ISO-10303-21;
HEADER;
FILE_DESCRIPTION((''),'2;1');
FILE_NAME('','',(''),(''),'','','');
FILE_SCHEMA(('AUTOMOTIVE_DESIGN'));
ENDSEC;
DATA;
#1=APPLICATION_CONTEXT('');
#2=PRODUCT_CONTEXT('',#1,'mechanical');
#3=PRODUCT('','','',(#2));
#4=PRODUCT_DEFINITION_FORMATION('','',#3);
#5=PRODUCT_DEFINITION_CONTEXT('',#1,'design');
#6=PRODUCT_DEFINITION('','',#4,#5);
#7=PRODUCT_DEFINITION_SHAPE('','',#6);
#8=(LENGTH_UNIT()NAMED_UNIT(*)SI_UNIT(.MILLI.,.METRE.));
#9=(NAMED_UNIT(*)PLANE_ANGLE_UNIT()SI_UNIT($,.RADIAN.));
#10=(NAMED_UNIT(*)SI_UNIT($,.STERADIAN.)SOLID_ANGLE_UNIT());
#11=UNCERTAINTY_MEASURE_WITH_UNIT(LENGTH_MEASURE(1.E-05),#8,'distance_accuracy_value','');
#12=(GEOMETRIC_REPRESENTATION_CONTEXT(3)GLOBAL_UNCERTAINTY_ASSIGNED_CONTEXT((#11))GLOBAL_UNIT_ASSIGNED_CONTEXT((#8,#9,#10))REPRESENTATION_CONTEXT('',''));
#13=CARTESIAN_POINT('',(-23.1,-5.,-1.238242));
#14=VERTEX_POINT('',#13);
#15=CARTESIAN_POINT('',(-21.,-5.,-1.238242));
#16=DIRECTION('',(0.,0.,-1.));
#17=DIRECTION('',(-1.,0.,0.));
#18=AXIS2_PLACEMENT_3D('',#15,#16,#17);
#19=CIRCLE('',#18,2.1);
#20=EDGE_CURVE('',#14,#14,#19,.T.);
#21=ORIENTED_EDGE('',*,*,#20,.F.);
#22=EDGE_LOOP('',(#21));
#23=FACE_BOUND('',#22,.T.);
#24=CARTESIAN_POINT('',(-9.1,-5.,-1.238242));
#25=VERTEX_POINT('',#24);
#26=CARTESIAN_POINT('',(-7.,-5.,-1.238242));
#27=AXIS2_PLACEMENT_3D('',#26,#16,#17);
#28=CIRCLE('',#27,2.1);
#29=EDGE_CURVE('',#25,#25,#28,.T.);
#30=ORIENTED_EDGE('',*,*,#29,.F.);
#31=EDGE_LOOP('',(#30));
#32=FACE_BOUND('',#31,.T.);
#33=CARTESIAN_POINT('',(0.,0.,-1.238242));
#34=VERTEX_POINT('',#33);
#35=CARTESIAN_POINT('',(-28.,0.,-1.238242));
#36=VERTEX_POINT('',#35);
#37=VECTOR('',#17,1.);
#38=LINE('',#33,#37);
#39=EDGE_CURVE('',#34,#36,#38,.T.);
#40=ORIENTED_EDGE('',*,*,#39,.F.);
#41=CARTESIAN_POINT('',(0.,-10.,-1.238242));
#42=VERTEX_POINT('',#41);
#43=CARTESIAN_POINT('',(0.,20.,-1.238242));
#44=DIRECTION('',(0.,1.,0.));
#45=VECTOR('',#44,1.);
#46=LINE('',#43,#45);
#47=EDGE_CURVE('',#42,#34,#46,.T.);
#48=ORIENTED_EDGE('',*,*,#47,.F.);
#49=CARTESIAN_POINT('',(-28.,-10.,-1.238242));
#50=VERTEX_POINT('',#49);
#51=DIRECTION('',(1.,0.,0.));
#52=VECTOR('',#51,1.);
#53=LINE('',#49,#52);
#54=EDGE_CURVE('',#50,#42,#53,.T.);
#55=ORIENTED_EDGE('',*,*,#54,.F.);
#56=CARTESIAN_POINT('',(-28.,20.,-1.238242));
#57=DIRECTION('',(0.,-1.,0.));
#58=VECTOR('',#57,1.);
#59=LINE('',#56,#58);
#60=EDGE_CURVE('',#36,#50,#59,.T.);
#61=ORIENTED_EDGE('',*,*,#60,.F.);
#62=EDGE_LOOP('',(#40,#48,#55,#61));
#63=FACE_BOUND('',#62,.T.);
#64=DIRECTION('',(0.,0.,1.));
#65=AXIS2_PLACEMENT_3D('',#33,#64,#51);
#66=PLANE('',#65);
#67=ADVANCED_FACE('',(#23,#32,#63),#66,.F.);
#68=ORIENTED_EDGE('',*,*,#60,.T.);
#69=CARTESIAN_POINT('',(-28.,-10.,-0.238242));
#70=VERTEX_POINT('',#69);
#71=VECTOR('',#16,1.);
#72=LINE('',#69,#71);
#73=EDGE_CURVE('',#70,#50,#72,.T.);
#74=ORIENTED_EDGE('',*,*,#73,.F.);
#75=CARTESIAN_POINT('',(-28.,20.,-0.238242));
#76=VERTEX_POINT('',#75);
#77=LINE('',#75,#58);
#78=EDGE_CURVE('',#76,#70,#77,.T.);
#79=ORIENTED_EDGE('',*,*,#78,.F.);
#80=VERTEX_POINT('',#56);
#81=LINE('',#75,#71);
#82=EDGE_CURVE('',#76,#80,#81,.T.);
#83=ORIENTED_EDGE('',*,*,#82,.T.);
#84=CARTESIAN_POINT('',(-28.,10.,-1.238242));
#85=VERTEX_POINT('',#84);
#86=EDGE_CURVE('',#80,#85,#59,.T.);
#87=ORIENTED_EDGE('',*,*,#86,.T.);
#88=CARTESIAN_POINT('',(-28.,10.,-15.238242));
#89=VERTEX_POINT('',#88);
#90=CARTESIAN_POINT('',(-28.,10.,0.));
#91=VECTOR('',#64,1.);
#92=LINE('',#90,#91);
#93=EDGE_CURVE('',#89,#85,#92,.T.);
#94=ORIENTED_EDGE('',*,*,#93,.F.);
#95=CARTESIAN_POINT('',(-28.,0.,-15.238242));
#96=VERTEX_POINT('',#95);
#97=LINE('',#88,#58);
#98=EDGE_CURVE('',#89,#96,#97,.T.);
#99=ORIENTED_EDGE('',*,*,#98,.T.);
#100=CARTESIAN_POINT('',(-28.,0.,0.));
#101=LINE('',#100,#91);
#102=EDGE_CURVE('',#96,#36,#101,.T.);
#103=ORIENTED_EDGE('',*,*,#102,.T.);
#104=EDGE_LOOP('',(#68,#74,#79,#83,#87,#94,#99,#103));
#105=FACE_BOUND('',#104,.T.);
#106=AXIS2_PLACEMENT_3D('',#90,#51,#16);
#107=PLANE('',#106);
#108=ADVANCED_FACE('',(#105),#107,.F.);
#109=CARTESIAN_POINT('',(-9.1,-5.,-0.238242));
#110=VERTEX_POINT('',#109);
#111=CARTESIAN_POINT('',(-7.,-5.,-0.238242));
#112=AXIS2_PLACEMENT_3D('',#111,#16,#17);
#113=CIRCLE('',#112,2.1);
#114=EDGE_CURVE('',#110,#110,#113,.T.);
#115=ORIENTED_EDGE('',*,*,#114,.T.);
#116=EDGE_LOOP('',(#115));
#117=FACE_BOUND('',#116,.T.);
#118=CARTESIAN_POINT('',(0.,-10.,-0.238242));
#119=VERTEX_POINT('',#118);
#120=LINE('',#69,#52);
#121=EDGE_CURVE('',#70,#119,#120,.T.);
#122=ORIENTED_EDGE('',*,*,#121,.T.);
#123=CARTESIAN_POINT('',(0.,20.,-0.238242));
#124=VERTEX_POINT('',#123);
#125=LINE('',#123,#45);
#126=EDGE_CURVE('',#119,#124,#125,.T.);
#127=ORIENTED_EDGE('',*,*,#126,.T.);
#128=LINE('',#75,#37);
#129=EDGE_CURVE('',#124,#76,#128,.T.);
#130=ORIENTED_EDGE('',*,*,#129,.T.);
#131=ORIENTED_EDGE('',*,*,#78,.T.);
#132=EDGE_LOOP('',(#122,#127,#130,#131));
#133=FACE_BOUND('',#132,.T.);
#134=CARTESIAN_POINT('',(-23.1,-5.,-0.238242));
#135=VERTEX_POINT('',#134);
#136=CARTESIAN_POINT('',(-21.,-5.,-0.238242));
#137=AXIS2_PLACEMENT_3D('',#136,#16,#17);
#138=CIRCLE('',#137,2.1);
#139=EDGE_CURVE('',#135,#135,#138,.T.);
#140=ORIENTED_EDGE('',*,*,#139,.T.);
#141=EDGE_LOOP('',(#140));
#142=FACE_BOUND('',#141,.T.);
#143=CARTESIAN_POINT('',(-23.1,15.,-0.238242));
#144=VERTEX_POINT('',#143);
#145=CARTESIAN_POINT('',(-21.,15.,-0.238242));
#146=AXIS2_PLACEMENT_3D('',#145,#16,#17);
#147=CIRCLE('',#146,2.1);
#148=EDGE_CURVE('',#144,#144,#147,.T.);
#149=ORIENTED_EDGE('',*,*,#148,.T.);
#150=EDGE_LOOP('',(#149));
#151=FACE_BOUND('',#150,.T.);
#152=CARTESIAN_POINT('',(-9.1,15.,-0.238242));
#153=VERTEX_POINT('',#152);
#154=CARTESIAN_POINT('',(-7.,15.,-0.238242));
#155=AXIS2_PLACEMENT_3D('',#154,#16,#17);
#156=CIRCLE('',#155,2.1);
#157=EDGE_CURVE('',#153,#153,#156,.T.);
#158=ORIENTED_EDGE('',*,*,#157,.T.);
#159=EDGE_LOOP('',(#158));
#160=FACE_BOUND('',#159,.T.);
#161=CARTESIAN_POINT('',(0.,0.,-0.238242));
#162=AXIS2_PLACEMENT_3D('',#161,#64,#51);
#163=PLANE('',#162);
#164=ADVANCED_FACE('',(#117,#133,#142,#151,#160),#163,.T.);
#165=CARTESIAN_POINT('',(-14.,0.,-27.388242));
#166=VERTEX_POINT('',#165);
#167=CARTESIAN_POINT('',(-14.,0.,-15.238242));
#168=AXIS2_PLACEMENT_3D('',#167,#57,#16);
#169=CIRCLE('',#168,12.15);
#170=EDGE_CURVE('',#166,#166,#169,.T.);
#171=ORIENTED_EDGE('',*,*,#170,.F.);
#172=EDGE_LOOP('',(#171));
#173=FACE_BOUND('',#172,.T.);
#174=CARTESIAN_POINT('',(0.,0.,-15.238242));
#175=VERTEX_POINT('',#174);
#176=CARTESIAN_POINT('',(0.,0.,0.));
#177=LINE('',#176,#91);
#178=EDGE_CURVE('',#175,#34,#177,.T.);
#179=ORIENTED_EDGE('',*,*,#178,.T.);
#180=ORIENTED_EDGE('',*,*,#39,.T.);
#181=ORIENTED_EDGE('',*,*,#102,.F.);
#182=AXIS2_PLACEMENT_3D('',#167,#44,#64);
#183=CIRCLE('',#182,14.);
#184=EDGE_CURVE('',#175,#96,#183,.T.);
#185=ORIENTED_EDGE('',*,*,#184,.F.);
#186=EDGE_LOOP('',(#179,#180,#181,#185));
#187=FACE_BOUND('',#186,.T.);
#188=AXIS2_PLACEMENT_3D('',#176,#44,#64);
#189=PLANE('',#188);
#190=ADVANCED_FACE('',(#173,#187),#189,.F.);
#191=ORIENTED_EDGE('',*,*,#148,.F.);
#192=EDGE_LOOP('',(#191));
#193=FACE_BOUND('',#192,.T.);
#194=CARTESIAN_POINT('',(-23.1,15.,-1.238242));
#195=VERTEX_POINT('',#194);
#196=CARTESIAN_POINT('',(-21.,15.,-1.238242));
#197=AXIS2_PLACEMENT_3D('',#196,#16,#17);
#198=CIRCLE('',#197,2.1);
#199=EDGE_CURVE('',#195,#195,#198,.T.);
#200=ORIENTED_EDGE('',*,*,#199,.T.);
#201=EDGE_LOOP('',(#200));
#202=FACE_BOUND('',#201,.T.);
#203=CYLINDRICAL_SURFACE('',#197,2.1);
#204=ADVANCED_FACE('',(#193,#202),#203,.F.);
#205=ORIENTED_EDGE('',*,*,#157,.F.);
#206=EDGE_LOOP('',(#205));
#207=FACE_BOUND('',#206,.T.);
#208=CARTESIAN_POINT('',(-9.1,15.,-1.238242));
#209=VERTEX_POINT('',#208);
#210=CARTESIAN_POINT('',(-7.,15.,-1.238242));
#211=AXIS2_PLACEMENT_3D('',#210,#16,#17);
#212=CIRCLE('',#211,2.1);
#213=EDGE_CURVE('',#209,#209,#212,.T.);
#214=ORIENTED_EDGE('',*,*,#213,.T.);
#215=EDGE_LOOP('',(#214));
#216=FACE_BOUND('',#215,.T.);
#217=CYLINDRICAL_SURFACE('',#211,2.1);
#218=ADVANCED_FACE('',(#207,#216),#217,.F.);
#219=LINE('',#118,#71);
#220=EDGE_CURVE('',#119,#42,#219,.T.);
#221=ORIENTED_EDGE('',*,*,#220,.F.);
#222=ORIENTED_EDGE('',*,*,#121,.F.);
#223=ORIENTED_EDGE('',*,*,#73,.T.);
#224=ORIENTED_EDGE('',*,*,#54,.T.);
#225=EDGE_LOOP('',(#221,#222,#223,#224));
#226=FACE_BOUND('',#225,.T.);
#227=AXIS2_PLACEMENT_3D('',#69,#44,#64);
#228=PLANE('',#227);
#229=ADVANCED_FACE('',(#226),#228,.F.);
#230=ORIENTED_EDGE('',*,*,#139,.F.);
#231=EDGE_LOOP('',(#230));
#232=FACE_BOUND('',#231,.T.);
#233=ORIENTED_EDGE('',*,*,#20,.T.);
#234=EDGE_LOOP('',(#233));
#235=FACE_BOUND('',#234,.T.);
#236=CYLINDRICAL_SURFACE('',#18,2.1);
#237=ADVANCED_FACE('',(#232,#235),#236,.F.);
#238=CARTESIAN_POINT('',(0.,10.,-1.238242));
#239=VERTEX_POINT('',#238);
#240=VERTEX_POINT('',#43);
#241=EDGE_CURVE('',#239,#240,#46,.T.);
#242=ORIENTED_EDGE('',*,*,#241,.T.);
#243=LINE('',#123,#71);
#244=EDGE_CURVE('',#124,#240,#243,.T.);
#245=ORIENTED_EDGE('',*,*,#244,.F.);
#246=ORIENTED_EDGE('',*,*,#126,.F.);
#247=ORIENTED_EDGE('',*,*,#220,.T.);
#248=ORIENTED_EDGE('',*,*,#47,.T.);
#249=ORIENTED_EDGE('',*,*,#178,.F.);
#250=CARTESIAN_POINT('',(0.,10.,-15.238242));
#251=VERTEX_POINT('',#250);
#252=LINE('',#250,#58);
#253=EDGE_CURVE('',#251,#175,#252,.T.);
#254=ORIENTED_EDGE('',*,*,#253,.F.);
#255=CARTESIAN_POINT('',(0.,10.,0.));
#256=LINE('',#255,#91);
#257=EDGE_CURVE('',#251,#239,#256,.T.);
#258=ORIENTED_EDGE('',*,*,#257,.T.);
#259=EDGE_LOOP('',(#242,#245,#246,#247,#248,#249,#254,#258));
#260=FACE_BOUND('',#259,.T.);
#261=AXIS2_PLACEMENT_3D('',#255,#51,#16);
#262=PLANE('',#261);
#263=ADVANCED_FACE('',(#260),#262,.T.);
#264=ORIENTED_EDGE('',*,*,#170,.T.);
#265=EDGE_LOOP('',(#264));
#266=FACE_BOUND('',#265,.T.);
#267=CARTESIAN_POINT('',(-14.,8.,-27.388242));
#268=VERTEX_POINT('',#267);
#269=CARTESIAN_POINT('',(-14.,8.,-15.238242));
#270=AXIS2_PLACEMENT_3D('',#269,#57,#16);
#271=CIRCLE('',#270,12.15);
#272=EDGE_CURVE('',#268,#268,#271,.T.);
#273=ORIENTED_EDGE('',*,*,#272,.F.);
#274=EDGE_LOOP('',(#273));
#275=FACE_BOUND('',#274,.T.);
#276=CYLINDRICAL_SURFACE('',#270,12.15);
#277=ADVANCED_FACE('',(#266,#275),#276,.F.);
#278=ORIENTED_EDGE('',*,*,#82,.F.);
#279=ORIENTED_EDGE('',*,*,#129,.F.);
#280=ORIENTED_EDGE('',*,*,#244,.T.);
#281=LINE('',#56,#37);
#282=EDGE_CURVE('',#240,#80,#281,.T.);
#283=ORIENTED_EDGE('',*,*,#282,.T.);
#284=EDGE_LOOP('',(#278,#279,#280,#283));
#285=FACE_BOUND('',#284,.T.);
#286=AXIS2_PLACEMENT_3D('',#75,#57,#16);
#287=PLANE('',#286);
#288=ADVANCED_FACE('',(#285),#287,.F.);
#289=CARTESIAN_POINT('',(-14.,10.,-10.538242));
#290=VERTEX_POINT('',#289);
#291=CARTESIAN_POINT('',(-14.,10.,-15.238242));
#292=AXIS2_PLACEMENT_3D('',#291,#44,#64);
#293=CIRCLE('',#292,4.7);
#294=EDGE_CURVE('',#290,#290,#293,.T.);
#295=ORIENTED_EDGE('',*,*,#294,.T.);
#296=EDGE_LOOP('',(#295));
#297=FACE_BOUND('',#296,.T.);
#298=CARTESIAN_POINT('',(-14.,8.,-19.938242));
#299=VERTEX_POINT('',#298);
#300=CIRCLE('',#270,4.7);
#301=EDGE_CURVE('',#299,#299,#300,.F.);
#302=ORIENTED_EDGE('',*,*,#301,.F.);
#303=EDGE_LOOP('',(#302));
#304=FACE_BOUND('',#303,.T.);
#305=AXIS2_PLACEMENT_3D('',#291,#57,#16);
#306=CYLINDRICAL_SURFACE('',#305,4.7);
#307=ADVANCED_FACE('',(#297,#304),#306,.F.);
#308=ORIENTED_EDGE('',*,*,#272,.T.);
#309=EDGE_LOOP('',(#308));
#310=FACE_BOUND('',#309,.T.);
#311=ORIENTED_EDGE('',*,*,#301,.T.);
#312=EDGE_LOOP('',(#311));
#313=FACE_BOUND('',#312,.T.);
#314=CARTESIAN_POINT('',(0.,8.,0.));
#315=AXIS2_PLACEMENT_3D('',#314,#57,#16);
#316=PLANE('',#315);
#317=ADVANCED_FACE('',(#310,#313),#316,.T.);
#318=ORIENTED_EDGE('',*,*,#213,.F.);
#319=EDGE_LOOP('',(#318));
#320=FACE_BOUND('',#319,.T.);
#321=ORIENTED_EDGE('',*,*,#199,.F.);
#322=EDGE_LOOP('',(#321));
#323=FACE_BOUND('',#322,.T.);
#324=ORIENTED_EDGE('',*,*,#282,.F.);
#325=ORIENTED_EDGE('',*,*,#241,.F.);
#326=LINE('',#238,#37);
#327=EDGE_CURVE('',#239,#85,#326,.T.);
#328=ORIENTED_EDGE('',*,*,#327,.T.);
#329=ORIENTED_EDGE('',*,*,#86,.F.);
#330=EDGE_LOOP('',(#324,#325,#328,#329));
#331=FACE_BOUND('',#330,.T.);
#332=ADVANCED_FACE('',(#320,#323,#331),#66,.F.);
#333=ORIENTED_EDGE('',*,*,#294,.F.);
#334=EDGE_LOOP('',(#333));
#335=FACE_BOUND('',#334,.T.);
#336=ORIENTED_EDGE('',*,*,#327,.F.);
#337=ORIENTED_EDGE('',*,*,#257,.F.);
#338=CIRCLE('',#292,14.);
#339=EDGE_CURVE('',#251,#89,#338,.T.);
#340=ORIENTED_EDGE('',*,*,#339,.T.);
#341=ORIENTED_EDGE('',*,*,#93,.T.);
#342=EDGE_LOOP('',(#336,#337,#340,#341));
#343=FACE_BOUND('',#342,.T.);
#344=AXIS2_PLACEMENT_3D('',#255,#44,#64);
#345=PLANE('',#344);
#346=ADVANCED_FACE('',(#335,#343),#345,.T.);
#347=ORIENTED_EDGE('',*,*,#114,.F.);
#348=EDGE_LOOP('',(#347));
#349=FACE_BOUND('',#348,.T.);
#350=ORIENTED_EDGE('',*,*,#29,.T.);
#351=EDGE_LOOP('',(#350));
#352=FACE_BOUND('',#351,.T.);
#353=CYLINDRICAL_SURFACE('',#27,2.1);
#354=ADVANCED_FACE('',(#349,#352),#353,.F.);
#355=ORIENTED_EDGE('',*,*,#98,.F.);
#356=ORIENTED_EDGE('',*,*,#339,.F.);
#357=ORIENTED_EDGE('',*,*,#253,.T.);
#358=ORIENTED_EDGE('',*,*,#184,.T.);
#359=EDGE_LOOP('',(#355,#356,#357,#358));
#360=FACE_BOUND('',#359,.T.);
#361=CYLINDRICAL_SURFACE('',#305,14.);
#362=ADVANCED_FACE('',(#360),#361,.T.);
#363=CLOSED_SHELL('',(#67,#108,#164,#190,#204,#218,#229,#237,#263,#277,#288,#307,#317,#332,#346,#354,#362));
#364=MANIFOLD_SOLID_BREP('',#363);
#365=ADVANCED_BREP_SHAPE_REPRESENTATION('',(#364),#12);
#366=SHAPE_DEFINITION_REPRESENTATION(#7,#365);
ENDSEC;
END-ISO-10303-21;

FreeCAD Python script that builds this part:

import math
import FreeCAD as App
import Part
import Sketcher


def add_polygon(sketch, points):
    """Adds a closed chain of lines whose ends are joined by coincident constraints."""
    first, n = sketch.GeometryCount, len(points)
    for a, b in zip(points, points[1:] + points[:1]):
        sketch.addGeometry(Part.LineSegment(App.Vector(*a, 0), App.Vector(*b, 0)), False)
    for i in range(n):
        sketch.addConstraint(Sketcher.Constraint("Coincident", first + i, 2, first + (i + 1) % n, 1))

doc = App.newDocument("Part")
body = doc.addObject("PartDesign::Body", "Body")

sketch1 = body.newObject("Sketcher::SketchObject", "Sketch")
sketch1.AttachmentSupport = (doc.getObject("XZ_Plane"), [""])
sketch1.MapMode = "FlatFace"
sketch1.addGeometry([
    Part.LineSegment(App.Vector(0, -1.2, 0), App.Vector(0, -15.2, 0)),
    Part.ArcOfCircle(Part.Circle(App.Vector(-14, -15.2, 0), App.Vector(0, 0, 1), 14), math.radians(180), math.radians(360)),
    Part.LineSegment(App.Vector(-28, -15.2, 0), App.Vector(-28, -1.2, 0)),
    Part.LineSegment(App.Vector(-28, -1.2, 0), App.Vector(0, -1.2, 0)),
    Part.Circle(App.Vector(-14, -15.2, 0), App.Vector(0, 0, 1), 4.7),
], False)
sketch1.addConstraint([
    Sketcher.Constraint("Tangent", 0, 2, 1, 2),
    Sketcher.Constraint("Tangent", 1, 1, 2, 1),
    Sketcher.Constraint("Coincident", 2, 2, 3, 1),
    Sketcher.Constraint("Coincident", 3, 2, 0, 1),
    Sketcher.Constraint("Vertical", 0),
    Sketcher.Constraint("Vertical", 2),
    Sketcher.Constraint("Horizontal", 3),
    Sketcher.Constraint("Coincident", 4, 3, 1, 3),
    Sketcher.Constraint("PointOnObject", 0, 2, -2),
    Sketcher.Constraint("Radius", 1, 14.0),
    Sketcher.Constraint("Diameter", 4, 9.4),
    Sketcher.Constraint("DistanceY", 0, 2, 0, 1, 14.0),
    Sketcher.Constraint("DistanceY", 1, 3, -1, 1, 15.238242),
])
pad1 = body.newObject("PartDesign::Pad", "Pad")
pad1.Profile = sketch1
pad1.Length = 10
pad1.Reversed = True

sketch2 = body.newObject("Sketcher::SketchObject", "Sketch001")
sketch2.AttachmentSupport = (doc.getObject("XY_Plane"), [""])
sketch2.MapMode = "FlatFace"
sketch2.AttachmentOffset = App.Placement(App.Vector(0, 0, -1.238242), App.Rotation())
add_polygon(sketch2, [(-28, 20), (-28, -10), (0, -10), (0, 20)])
sketch2.addConstraint([
    Sketcher.Constraint("Vertical", 0),
    Sketcher.Constraint("Horizontal", 1),
    Sketcher.Constraint("Vertical", 2),
    Sketcher.Constraint("Horizontal", 3),
    Sketcher.Constraint("PointOnObject", 1, 2, -2),
    Sketcher.Constraint("DistanceX", 1, 1, 1, 2, 28.0),
    Sketcher.Constraint("DistanceY", 0, 2, 0, 1, 30.0),
    Sketcher.Constraint("DistanceY", 0, 2, -1, 1, 10.0),
])
pad2 = body.newObject("PartDesign::Pad", "Pad001")
pad2.Profile = sketch2
pad2.Length = 1

sketch3 = body.newObject("Sketcher::SketchObject", "Sketch002")
sketch3.AttachmentSupport = (doc.getObject("XY_Plane"), [""])
sketch3.MapMode = "FlatFace"
sketch3.AttachmentOffset = App.Placement(App.Vector(0, 0, -1.238242), App.Rotation())
sketch3.addGeometry([
    Part.Circle(App.Vector(-7, 15, 0), App.Vector(0, 0, 1), 2.1),
    Part.Circle(App.Vector(-21, 15, 0), App.Vector(0, 0, 1), 2.1),
    Part.Circle(App.Vector(-7, -5, 0), App.Vector(0, 0, 1), 2.1),
    Part.Circle(App.Vector(-21, -5, 0), App.Vector(0, 0, 1), 2.1),
], False)
sketch3.addConstraint([
    Sketcher.Constraint("Equal", 0, 1),
    Sketcher.Constraint("Equal", 1, 2),
    Sketcher.Constraint("Equal", 2, 3),
    Sketcher.Constraint("Horizontal", 0, 3, 1, 3),
    Sketcher.Constraint("Horizontal", 2, 3, 3, 3),
    Sketcher.Constraint("Vertical", 0, 3, 2, 3),
    Sketcher.Constraint("Vertical", 1, 3, 3, 3),
    Sketcher.Constraint("Diameter", 0, 4.2),
    Sketcher.Constraint("DistanceX", 0, 3, -1, 1, 7.0),
    Sketcher.Constraint("DistanceY", -1, 1, 0, 3, 15.0),
    Sketcher.Constraint("DistanceX", 1, 3, -1, 1, 21.0),
    Sketcher.Constraint("DistanceY", 2, 3, -1, 1, 5.0),
])
doc.recompute()
hole = body.newObject("PartDesign::Hole", "Hole")
hole.Profile = sketch3
hole.ThreadType = "None"
hole.Diameter = 4.2
hole.DepthType = "ThroughAll"
hole.Reversed = True

sketch4 = body.newObject("Sketcher::SketchObject", "Sketch003")
sketch4.AttachmentSupport = (doc.getObject("XZ_Plane"), [""])
sketch4.MapMode = "FlatFace"
sketch4.addGeometry([
    Part.Circle(App.Vector(-14, -15.2, 0), App.Vector(0, 0, 1), 12.2),
    Part.Circle(App.Vector(-14, -15.2, 0), App.Vector(0, 0, 1), 4.7),
], False)
sketch4.addConstraint([
    Sketcher.Constraint("Coincident", 1, 3, 0, 3),
    Sketcher.Constraint("Diameter", 0, 24.3),
    Sketcher.Constraint("Diameter", 1, 9.4),
    Sketcher.Constraint("DistanceX", 0, 3, -1, 1, 14.0),
    Sketcher.Constraint("DistanceY", 0, 3, -1, 1, 15.238242),
])
pocket1 = body.newObject("PartDesign::Pocket", "Pocket")
pocket1.Profile = sketch4
pocket1.Length = 8

doc.recompute()
